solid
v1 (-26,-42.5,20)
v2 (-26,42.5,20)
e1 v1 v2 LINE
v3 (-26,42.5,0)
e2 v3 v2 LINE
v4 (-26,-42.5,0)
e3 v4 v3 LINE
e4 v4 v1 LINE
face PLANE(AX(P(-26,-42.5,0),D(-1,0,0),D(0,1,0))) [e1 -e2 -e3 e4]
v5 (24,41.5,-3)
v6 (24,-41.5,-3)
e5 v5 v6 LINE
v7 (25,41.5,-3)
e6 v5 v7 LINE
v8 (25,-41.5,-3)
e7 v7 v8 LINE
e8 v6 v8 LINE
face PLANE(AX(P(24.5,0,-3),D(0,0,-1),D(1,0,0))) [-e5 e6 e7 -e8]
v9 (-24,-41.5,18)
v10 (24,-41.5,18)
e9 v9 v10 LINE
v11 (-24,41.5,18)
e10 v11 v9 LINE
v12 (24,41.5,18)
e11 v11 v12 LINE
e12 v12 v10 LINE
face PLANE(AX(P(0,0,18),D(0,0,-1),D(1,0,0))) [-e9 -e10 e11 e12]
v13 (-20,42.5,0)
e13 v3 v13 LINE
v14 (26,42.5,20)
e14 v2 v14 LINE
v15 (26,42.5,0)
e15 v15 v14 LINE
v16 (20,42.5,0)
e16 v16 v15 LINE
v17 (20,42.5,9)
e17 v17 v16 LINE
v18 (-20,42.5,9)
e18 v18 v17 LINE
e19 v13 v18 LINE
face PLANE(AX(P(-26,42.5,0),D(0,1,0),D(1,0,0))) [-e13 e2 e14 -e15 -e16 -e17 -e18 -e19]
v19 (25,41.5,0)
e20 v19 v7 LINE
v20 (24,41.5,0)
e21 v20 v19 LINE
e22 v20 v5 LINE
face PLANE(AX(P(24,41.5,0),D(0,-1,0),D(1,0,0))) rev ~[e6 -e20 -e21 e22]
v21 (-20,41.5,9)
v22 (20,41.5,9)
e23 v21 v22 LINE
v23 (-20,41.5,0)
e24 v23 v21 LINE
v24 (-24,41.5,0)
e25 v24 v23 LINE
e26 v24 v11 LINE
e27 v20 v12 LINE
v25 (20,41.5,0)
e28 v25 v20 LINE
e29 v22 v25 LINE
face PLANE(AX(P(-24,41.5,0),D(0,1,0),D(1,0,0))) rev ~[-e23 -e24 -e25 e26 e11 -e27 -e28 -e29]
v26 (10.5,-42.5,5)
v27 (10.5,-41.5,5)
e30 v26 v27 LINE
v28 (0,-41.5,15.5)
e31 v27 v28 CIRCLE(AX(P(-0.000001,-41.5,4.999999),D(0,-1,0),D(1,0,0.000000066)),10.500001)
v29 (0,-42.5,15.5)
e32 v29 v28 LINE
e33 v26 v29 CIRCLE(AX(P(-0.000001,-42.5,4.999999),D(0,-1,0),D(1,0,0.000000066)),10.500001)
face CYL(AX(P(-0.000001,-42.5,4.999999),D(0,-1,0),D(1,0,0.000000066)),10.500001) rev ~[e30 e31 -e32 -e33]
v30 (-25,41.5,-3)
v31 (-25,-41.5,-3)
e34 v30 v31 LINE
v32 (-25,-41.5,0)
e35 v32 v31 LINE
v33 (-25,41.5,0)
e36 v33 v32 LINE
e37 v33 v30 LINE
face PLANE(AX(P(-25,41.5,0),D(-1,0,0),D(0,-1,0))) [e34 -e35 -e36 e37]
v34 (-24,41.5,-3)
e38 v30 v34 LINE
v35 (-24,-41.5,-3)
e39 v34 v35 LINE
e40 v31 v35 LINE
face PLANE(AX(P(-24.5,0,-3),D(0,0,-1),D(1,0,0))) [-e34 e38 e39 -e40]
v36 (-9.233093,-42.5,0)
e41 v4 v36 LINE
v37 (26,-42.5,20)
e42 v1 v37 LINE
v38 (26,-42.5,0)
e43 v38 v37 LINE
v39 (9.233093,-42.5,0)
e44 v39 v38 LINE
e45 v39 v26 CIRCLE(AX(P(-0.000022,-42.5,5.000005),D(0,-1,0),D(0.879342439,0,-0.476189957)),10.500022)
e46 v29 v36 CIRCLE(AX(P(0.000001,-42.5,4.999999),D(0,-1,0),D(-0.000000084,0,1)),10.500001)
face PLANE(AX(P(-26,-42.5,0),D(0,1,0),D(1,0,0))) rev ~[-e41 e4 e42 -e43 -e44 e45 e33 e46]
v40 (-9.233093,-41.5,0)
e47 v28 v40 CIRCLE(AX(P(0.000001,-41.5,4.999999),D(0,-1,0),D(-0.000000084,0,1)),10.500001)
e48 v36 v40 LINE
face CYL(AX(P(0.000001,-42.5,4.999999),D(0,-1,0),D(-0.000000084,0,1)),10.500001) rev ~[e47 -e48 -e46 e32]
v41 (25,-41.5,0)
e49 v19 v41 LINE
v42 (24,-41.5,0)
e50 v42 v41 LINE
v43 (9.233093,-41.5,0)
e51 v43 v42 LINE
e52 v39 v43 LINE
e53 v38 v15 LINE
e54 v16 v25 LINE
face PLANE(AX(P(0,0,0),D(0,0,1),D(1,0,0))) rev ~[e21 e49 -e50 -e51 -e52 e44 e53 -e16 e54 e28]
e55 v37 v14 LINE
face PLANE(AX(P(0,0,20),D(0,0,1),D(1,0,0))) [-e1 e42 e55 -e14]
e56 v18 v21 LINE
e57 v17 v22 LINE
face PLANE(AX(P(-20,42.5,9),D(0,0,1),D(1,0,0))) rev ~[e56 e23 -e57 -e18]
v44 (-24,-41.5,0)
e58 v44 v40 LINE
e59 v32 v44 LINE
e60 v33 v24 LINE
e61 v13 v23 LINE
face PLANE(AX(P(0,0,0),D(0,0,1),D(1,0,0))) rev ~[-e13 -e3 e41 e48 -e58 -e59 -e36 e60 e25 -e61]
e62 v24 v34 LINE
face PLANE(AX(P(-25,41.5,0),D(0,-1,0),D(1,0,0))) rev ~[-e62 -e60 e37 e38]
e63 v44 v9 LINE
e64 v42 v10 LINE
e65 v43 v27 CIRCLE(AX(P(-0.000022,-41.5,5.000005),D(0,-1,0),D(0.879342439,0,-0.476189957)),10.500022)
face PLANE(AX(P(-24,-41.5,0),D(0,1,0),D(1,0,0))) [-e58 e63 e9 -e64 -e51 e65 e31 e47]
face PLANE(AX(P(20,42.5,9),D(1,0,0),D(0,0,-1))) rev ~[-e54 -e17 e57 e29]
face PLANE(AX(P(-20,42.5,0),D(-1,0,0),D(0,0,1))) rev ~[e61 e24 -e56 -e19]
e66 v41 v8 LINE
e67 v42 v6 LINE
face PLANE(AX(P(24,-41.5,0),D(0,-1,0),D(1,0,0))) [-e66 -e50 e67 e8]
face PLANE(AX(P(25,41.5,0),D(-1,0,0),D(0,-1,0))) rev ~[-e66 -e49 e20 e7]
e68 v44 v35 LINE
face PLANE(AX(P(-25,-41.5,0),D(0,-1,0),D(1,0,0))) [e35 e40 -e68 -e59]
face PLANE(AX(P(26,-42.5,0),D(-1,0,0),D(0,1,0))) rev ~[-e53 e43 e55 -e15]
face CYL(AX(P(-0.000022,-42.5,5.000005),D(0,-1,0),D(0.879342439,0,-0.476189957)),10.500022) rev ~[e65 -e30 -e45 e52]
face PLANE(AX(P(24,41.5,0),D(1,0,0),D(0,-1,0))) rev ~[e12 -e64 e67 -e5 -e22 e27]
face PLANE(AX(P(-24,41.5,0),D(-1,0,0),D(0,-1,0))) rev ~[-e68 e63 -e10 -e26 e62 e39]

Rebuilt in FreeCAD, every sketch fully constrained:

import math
import FreeCAD as App
import Part
import Sketcher

V = App.Vector


def add_polygon(sketch, points):
    """Adds a closed chain of lines whose ends are joined by coincident constraints."""
    first, n = sketch.GeometryCount, len(points)
    for a, b in zip(points, points[1:] + points[:1]):
        sketch.addGeometry(Part.LineSegment(App.Vector(*a, 0), App.Vector(*b, 0)), False)
    for i in range(n):
        sketch.addConstraint(Sketcher.Constraint("Coincident", first + i, 2, first + (i + 1) % n, 1))

doc = App.newDocument("Part")
body = doc.addObject("PartDesign::Body", "Body")

# Sketch on XY plane
sketch1 = doc.addObject("Sketcher::SketchObject", "Sketch")
body.addObject(sketch1)
sketch1.AttachmentSupport = (doc.XY_Plane, [""])
sketch1.MapMode = "FlatFace"
add_polygon(sketch1, [(-26, 42.5), (-26, -42.5), (26, -42.5), (26, 42.5)])  # lines 0-3
sketch1.addConstraint(Sketcher.Constraint("Vertical", 0))
sketch1.addConstraint(Sketcher.Constraint("Horizontal", 1))
sketch1.addConstraint(Sketcher.Constraint("Vertical", 2))
sketch1.addConstraint(Sketcher.Constraint("Horizontal", 3))
sketch1.addConstraint(Sketcher.Constraint("Symmetric", 0, 2, 2, 2, -1, 1))
sketch1.addConstraint(Sketcher.Constraint("DistanceX", 1, 1, 1, 2, 52.0))
sketch1.addConstraint(Sketcher.Constraint("DistanceY", 0, 2, 0, 1, 85.0))
pad1 = doc.addObject("PartDesign::Pad", "Pad")
body.addObject(pad1)
pad1.Profile = sketch1
pad1.Length = 20

# Sketch on XY plane
sketch2 = doc.addObject("Sketcher::SketchObject", "Sketch001")
body.addObject(sketch2)
sketch2.AttachmentSupport = (doc.XY_Plane, [""])
sketch2.MapMode = "FlatFace"
add_polygon(sketch2, [(-24, -41.5), (-24, 41.5), (24, 41.5), (24, -41.5)])  # lines 0-3
sketch2.addConstraint(Sketcher.Constraint("Vertical", 0))
sketch2.addConstraint(Sketcher.Constraint("Horizontal", 1))
sketch2.addConstraint(Sketcher.Constraint("Vertical", 2))
sketch2.addConstraint(Sketcher.Constraint("Horizontal", 3))
sketch2.addConstraint(Sketcher.Constraint("Symmetric", 0, 2, 2, 2, -1, 1))
sketch2.addConstraint(Sketcher.Constraint("DistanceX", 1, 1, 1, 2, 48.0))
sketch2.addConstraint(Sketcher.Constraint("DistanceY", 0, 1, 0, 2, 83.0))
pocket1 = doc.addObject("PartDesign::Pocket", "Pocket")
body.addObject(pocket1)
pocket1.Profile = sketch2
pocket1.Length = 18
pocket1.Reversed = True

# Sketch on XY plane
sketch3 = doc.addObject("Sketcher::SketchObject", "Sketch002")
body.addObject(sketch3)
sketch3.AttachmentSupport = (doc.XY_Plane, [""])
sketch3.MapMode = "FlatFace"
add_polygon(sketch3, [(-25, -41.5), (-25, 41.5), (-24, 41.5), (-24, -41.5)])  # lines 0-3
add_polygon(sketch3, [(24, -41.5), (24, 41.5), (25, 41.5), (25, -41.5)])  # lines 4-7
sketch3.addConstraint(Sketcher.Constraint("Vertical", 0))
sketch3.addConstraint(Sketcher.Constraint("Horizontal", 1))
sketch3.addConstraint(Sketcher.Constraint("Vertical", 2))
sketch3.addConstraint(Sketcher.Constraint("Horizontal", 3))
sketch3.addConstraint(Sketcher.Constraint("Vertical", 4))
sketch3.addConstraint(Sketcher.Constraint("Horizontal", 5))
sketch3.addConstraint(Sketcher.Constraint("Vertical", 6))
sketch3.addConstraint(Sketcher.Constraint("Horizontal", 7))
sketch3.addConstraint(Sketcher.Constraint("Symmetric", 2, 2, 4, 2, -1, 1))
sketch3.addConstraint(Sketcher.Constraint("Symmetric", 0, 2, 6, 2, -1, 1))
sketch3.addConstraint(Sketcher.Constraint("Horizontal", 1, 2, 4, 2))
sketch3.addConstraint(Sketcher.Constraint("DistanceX", 1, 1, 1, 2, 1.0))
sketch3.addConstraint(Sketcher.Constraint("DistanceY", 0, 1, 0, 2, 83.0))
sketch3.addConstraint(Sketcher.Constraint("DistanceX", 0, 2, -1, 1, 25.0))
pad2 = doc.addObject("PartDesign::Pad", "Pad001")
body.addObject(pad2)
pad2.Profile = sketch3
pad2.Length = 3
pad2.Reversed = True

# Sketch on XZ plane
sketch4 = doc.addObject("Sketcher::SketchObject", "Sketch003")
body.addObject(sketch4)
sketch4.AttachmentSupport = (doc.XZ_Plane, [""])
sketch4.MapMode = "FlatFace"
sketch4.AttachmentOffset = App.Placement(V(0, 0, -42.5), App.Rotation())
add_polygon(sketch4, [(20, 0), (-20, 0), (-20, 9), (20, 9)])  # lines 0-3
sketch4.addConstraint(Sketcher.Constraint("Horizontal", 0))
sketch4.addConstraint(Sketcher.Constraint("Vertical", 1))
sketch4.addConstraint(Sketcher.Constraint("Horizontal", 2))
sketch4.addConstraint(Sketcher.Constraint("Vertical", 3))
sketch4.addConstraint(Sketcher.Constraint("Symmetric", 0, 2, 3, 2, -1, 1))
sketch4.addConstraint(Sketcher.Constraint("DistanceX", 0, 2, 0, 1, 40.0))
sketch4.addConstraint(Sketcher.Constraint("DistanceY", 1, 1, 1, 2, 9.0))
pocket2 = doc.addObject("PartDesign::Pocket", "Pocket001")
body.addObject(pocket2)
pocket2.Profile = sketch4
pocket2.Length = 25
pocket2.Reversed = True

# Sketch on XZ plane
sketch5 = doc.addObject("Sketcher::SketchObject", "Sketch004")
body.addObject(sketch5)
sketch5.AttachmentSupport = (doc.XZ_Plane, [""])
sketch5.MapMode = "FlatFace"
sketch5.AttachmentOffset = App.Placement(V(0, 0, 42.5), App.Rotation())
sketch5.addGeometry(Part.ArcOfCircle(Part.Circle(V(-0.000001, 4.999999, 0), V(0, 0, 1), 10.500001), math.radians(0.000004), math.radians(89.999996)), False)
sketch5.addGeometry(Part.ArcOfCircle(Part.Circle(V(0.000001, 4.999999, 0), V(0, 0, 1), 10.500001), math.radians(90.000005), math.radians(208.436883)), False)
sketch5.addGeometry(Part.LineSegment(V(-9.233093, 0, 0), V(9.233093, 0, 0)), False)
sketch5.addGeometry(Part.ArcOfCircle(Part.Circle(V(-0.000022, 5.000005, 0), V(0, 0, 1), 10.500022), math.radians(-28.436856), math.radians(-0.000026)), False)
sketch5.addConstraint(Sketcher.Constraint("Coincident", 0, 2, 1, 1))
sketch5.addConstraint(Sketcher.Constraint("Coincident", 1, 2, 2, 1))
sketch5.addConstraint(Sketcher.Constraint("Coincident", 2, 2, 3, 1))
sketch5.addConstraint(Sketcher.Constraint("Coincident", 3, 2, 0, 1))
sketch5.addConstraint(Sketcher.Constraint("Horizontal", 2))
sketch5.addConstraint(Sketcher.Constraint("Coincident", 1, 3, 0, 3))
sketch5.addConstraint(Sketcher.Constraint("PointOnObject", 0, 3, -2))
sketch5.addConstraint(Sketcher.Constraint("PointOnObject", 0, 2, -2))
sketch5.addConstraint(Sketcher.Constraint("PointOnObject", 1, 2, -1))
sketch5.addConstraint(Sketcher.Constraint("Radius", 0, 10.500001))
sketch5.addConstraint(Sketcher.Constraint("DistanceY", -1, 1, 0, 3, 4.999999))
sketch5.addConstraint(Sketcher.Constraint("DistanceY", -1, 1, 3, 2, 5.0))
sketch5.addConstraint(Sketcher.Constraint("Radius", 3, 10.500022))
sketch5.addConstraint(Sketcher.Constraint("DistanceX", 2, 1, 2, 2, 18.466186))
pocket3 = doc.addObject("PartDesign::Pocket", "Pocket002")
body.addObject(pocket3)
pocket3.Profile = sketch5
pocket3.Length = 25

doc.recompute()
